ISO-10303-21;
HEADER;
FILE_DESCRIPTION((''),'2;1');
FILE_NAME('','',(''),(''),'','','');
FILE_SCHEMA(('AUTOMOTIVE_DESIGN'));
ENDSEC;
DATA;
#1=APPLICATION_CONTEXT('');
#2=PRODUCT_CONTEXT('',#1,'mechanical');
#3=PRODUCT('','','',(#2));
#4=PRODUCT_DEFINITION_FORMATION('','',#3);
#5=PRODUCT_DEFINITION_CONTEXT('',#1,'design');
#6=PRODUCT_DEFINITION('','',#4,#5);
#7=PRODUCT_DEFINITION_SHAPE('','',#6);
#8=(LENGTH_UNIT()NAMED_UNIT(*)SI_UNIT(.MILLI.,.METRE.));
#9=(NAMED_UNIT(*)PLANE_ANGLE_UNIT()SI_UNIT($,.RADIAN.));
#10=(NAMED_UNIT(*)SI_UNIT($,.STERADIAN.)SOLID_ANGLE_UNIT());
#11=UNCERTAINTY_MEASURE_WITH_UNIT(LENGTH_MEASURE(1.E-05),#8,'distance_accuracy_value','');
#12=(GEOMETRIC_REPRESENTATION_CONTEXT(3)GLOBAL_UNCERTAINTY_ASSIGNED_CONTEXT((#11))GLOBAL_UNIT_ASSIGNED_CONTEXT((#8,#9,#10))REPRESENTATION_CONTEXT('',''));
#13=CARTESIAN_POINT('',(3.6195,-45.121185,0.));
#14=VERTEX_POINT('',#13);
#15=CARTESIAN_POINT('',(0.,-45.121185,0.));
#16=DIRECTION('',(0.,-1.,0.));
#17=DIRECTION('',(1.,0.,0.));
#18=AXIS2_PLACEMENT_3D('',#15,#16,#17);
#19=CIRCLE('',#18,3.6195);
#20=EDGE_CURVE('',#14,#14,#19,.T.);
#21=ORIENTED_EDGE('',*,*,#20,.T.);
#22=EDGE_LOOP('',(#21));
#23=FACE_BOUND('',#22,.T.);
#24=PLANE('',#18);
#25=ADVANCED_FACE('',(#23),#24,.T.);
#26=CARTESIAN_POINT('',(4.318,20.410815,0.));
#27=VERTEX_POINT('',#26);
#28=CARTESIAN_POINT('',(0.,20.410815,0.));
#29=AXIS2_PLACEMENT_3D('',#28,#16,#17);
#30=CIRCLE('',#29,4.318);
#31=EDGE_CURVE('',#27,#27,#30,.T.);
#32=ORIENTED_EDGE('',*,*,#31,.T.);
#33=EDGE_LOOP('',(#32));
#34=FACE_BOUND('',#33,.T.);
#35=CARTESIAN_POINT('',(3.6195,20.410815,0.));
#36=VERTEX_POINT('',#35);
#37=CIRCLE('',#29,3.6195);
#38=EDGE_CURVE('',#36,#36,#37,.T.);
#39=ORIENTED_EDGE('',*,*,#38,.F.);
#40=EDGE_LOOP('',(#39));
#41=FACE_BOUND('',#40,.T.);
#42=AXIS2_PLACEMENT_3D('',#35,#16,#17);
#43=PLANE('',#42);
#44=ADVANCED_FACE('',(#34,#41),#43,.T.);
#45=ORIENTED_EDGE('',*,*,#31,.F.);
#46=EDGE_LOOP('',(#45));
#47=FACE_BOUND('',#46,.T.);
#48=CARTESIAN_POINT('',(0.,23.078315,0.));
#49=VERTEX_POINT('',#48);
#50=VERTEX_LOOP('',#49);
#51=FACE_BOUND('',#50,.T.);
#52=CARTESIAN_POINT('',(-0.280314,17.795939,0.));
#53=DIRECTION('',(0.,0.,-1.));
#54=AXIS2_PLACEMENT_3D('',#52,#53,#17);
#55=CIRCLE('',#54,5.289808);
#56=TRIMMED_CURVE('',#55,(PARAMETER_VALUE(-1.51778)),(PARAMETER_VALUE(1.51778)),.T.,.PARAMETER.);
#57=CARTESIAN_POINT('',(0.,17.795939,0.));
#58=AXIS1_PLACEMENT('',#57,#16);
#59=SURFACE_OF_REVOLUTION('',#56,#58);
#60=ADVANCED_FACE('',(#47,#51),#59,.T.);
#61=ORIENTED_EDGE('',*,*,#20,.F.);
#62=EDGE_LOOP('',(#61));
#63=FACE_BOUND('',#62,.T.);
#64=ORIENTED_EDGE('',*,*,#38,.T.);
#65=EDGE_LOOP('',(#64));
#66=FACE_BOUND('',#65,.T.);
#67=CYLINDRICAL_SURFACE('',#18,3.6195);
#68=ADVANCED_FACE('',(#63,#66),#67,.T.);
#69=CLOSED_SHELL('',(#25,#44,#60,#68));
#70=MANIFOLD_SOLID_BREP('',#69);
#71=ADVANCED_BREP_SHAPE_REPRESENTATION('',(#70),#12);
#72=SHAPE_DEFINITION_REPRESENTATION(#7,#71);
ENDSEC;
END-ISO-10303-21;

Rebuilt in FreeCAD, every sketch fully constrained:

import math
import FreeCAD as App
import Part
import Sketcher
Q = App.Units.Quantity

doc = App.newDocument("Part")
params = doc.addObject("Spreadsheet::Sheet", "Params")
for row, (alias, value) in enumerate([
    ("sketch1_height", "2.58 in"),
    ("revolution_angle", "360 deg"),
], start=1):
    params.set(f"A{row}", alias)
    params.set(f"B{row}", "=" + value)
    params.setAlias(f"B{row}", alias)

body = doc.addObject("PartDesign::Body", "Body")

# Sketch on XY plane
sketch1 = doc.addObject("Sketcher::SketchObject", "Sketch")
body.addObject(sketch1)
sketch1.AttachmentSupport = (doc.XY_Plane, [""])
sketch1.MapMode = "FlatFace"
sketch1.addGeometry([
    Part.LineSegment(App.Vector(0, -45.121185, 0), App.Vector(3.6195, -45.121185, 0)),  # 0
    Part.LineSegment(App.Vector(3.6195, -45.121185, 0), App.Vector(3.6195, 20.410815, 0)),  # 1
    Part.LineSegment(App.Vector(3.6195, 20.410815, 0), App.Vector(4.318, 20.410815, 0)),  # 2
    Part.ArcOfCircle(Part.Circle(App.Vector(-0.280314, 17.795939, 0), App.Vector(0, 0, 1), 5.289808), math.radians(29.625148), math.radians(86.9624)),  # 3
    Part.LineSegment(App.Vector(0, 23.078315, 0), App.Vector(0, -45.121185, 0)),  # 4
], False)
sketch1.addConstraint([
    Sketcher.Constraint("Coincident", 0, 2, 1, 1),
    Sketcher.Constraint("Coincident", 1, 2, 2, 1),
    Sketcher.Constraint("Coincident", 2, 2, 3, 1),
    Sketcher.Constraint("Coincident", 3, 2, 4, 1),
    Sketcher.Constraint("Coincident", 4, 2, 0, 1),
    Sketcher.Constraint("Horizontal", 0),
    Sketcher.Constraint("Vertical", 1),
    Sketcher.Constraint("Horizontal", 2),
    Sketcher.Constraint("Vertical", 4),
    Sketcher.Constraint("PointOnObject", 3, 2, -2),
    Sketcher.Constraint("DistanceY", 1, 1, 1, 2, Q("2.58 in")),
    Sketcher.Constraint("DistanceX", -1, 1, 2, 2, Q("0.17 in")),
    Sketcher.Constraint("DistanceX", 0, 1, 0, 2, Q("0.1425 in")),
    Sketcher.Constraint("DistanceY", 4, 2, 4, 1, Q("68.199499 mm")),
    Sketcher.Constraint("Radius", 3, Q("5.289808 mm")),
    Sketcher.Constraint("DistanceY", -1, 1, 3, 3, Q("17.795939 mm")),
])
sketch1.setExpression("Constraints[10]", "Params.sketch1_height")
revolution = doc.addObject("PartDesign::Revolution", "Revolution")
body.addObject(revolution)
revolution.Profile = sketch1
revolution.ReferenceAxis = (sketch1, ["V_Axis"])
revolution.setExpression("Angle", "Params.revolution_angle")

doc.recompute()
